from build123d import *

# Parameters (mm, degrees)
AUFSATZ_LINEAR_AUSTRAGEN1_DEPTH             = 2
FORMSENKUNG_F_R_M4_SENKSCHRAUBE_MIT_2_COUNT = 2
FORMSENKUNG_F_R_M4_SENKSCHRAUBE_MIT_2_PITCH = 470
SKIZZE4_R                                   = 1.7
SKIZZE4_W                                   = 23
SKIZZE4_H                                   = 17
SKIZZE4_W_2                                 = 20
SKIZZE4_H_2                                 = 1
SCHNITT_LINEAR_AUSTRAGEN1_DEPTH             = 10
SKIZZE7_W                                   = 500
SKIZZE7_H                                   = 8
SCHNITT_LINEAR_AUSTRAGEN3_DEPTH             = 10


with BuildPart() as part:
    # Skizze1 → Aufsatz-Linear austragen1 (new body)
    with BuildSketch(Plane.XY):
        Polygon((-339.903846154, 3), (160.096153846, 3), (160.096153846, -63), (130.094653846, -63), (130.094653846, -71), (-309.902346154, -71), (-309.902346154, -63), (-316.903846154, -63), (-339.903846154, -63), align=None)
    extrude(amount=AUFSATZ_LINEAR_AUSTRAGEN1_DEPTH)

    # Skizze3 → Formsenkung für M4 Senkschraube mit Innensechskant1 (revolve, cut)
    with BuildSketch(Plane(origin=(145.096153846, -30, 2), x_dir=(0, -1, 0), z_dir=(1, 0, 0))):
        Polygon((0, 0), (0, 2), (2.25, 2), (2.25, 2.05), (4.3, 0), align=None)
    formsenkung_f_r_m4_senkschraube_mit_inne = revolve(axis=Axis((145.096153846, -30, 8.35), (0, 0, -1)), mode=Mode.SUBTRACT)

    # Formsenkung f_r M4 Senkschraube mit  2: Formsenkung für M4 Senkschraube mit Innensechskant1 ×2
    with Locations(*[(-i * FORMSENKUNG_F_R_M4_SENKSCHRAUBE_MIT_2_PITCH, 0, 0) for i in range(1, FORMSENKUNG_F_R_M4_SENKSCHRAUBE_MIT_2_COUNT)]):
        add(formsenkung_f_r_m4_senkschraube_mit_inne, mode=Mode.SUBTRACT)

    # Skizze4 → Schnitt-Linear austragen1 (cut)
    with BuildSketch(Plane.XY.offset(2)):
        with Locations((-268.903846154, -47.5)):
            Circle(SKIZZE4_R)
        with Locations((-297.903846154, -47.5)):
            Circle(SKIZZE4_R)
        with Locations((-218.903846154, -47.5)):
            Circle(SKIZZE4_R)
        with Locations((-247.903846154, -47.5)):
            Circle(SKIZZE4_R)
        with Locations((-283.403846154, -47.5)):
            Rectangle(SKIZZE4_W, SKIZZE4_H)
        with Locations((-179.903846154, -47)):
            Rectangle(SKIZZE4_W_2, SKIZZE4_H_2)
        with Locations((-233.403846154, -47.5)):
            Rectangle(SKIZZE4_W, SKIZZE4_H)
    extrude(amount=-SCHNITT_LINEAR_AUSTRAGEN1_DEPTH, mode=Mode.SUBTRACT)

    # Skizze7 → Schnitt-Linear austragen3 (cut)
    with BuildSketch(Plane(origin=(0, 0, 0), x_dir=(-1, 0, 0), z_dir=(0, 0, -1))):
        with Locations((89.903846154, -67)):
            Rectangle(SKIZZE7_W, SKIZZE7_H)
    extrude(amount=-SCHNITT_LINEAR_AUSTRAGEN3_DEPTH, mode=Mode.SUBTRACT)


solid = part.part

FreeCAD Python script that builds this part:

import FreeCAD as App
import Part
import Sketcher
from FreeCAD import Vector
Q = App.Units.Quantity


def add_polygon(sketch, points):
    """Adds a closed chain of lines whose ends are joined by coincident constraints."""
    first, n = sketch.GeometryCount, len(points)
    for a, b in zip(points, points[1:] + points[:1]):
        sketch.addGeometry(Part.LineSegment(App.Vector(*a, 0), App.Vector(*b, 0)), False)
    for i in range(n):
        sketch.addConstraint(Sketcher.Constraint("Coincident", first + i, 2, first + (i + 1) % n, 1))

doc = App.newDocument("Part")
body = doc.addObject("PartDesign::Body", "Body")

# Sketch on XY plane
sketch1 = body.newObject("Sketcher::SketchObject", "Sketch")
sketch1.AttachmentSupport = (doc.getObject("XY_Plane"), [""])
sketch1.MapMode = "FlatFace"
add_polygon(sketch1, [(160.096154, 3), (-339.903846, 3), (-339.903846, -63), (-309.902346, -63), (-309.902346, -71), (130.094654, -71), (130.094654, -63), (160.096154, -63)])  # lines 0-7
sketch1.addConstraint(Sketcher.Constraint("Horizontal", 0))
sketch1.addConstraint(Sketcher.Constraint("Vertical", 1))
sketch1.addConstraint(Sketcher.Constraint("Horizontal", 2))
sketch1.addConstraint(Sketcher.Constraint("Vertical", 3))
sketch1.addConstraint(Sketcher.Constraint("Horizontal", 4))
sketch1.addConstraint(Sketcher.Constraint("Vertical", 5))
sketch1.addConstraint(Sketcher.Constraint("Horizontal", 6))
sketch1.addConstraint(Sketcher.Constraint("Vertical", 7))
sketch1.addConstraint(Sketcher.Constraint("Horizontal", 2, 2, 5, 2))
sketch1.addConstraint(Sketcher.Constraint("Equal", 2, 6))
sketch1.addConstraint(Sketcher.Constraint("DistanceX", 0, 2, 0, 1, 500.0))
sketch1.addConstraint(Sketcher.Constraint("DistanceY", 1, 2, 1, 1, 66.0))
sketch1.addConstraint(Sketcher.Constraint("DistanceY", 3, 2, 3, 1, 8.0))
sketch1.addConstraint(Sketcher.Constraint("DistanceY", -1, 1, 0, 2, 3.0))
sketch1.addConstraint(Sketcher.Constraint("DistanceX", 4, 1, 4, 2, 439.997))
sketch1.addConstraint(Sketcher.Constraint("DistanceX", 0, 2, -1, 1, 339.903846))
pad1 = body.newObject("PartDesign::Pad", "Pad")
pad1.Profile = sketch1
pad1.Length = 2

# Sketch on YZ plane
sketch2 = body.newObject("Sketcher::SketchObject", "Sketch001")
sketch2.AttachmentSupport = (doc.getObject("YZ_Plane"), [""])
sketch2.MapMode = "FlatFace"
sketch2.AttachmentOffset = App.Placement(Vector(0, 0, 145.096154), App.Rotation())
add_polygon(sketch2, [(-30, 0), (-30, 2), (-34.3, 2), (-32.25, -0.05), (-32.25, 0)])  # lines 0-4
sketch2.addGeometry(Part.LineSegment(Vector(-30, 2, 0), Vector(-30, -0.05, 0)), True)  # axis
sketch2.addConstraint(Sketcher.Constraint("Vertical", 0))
sketch2.addConstraint(Sketcher.Constraint("Horizontal", 1))
sketch2.addConstraint(Sketcher.Constraint("Vertical", 3))
sketch2.addConstraint(Sketcher.Constraint("Horizontal", 4))
sketch2.addConstraint(Sketcher.Constraint("Vertical", 5))
sketch2.addConstraint(Sketcher.Constraint("Coincident", 5, 1, 0, 2))
sketch2.addConstraint(Sketcher.Constraint("PointOnObject", 3, 2, -1))
sketch2.addConstraint(Sketcher.Constraint("Horizontal", 2, 2, 5, 2))
sketch2.addConstraint(Sketcher.Constraint("DistanceY", 0, 1, 0, 2, 2.0))
sketch2.addConstraint(Sketcher.Constraint("Angle", 2, Q("-45 deg")))
sketch2.addConstraint(Sketcher.Constraint("DistanceX", 1, 2, 1, 1, 4.3))
sketch2.addConstraint(Sketcher.Constraint("DistanceX", 0, 2, -1, 1, 30.0))
sketch2.addConstraint(Sketcher.Constraint("DistanceX", 4, 1, 4, 2, 2.25))
groove = body.newObject("PartDesign::Groove", "Groove")
groove.Profile = sketch2
groove.ReferenceAxis = (sketch2, ["Axis0"])
groove.Angle = 360
doc.recompute()

linearpattern = body.newObject("PartDesign::LinearPattern", "LinearPattern")
linearpattern.Originals = [groove]
linearpattern.Direction = (doc.getObject("X_Axis"), [""])
linearpattern.Mode = "offset"
linearpattern.Offset = 470
linearpattern.Occurrences = 2
linearpattern.Reversed = True
body.Tip = linearpattern

# Sketch on XY plane
sketch3 = body.newObject("Sketcher::SketchObject", "Sketch002")
sketch3.AttachmentSupport = (doc.getObject("XY_Plane"), [""])
sketch3.MapMode = "FlatFace"
sketch3.AttachmentOffset = App.Placement(Vector(0, 0, 2), App.Rotation())
sketch3.addGeometry(Part.Circle(Vector(-268.903846, -47.5, 0), Vector(0, 0, 1), 1.7), False)  # 0
sketch3.addGeometry(Part.Circle(Vector(-297.903846, -47.5, 0), Vector(0, 0, 1), 1.7), False)  # 1
sketch3.addGeometry(Part.Circle(Vector(-218.903846, -47.5, 0), Vector(0, 0, 1), 1.7), False)  # 2
sketch3.addGeometry(Part.Circle(Vector(-247.903846, -47.5, 0), Vector(0, 0, 1), 1.7), False)  # 3
add_polygon(sketch3, [(-294.903846, -39), (-294.903846, -56), (-271.903846, -56), (-271.903846, -39)])  # lines 4-7
add_polygon(sketch3, [(-189.903846, -46.5), (-189.903846, -47.5), (-169.903846, -47.5), (-169.903846, -46.5)])  # lines 8-11
add_polygon(sketch3, [(-244.903846, -39), (-244.903846, -56), (-221.903846, -56), (-221.903846, -39)])  # lines 12-15
sketch3.addConstraint(Sketcher.Constraint("Vertical", 4))
sketch3.addConstraint(Sketcher.Constraint("Horizontal", 5))
sketch3.addConstraint(Sketcher.Constraint("Vertical", 6))
sketch3.addConstraint(Sketcher.Constraint("Horizontal", 7))
sketch3.addConstraint(Sketcher.Constraint("Vertical", 8))
sketch3.addConstraint(Sketcher.Constraint("Horizontal", 9))
sketch3.addConstraint(Sketcher.Constraint("Vertical", 10))
sketch3.addConstraint(Sketcher.Constraint("Horizontal", 11))
sketch3.addConstraint(Sketcher.Constraint("Vertical", 12))
sketch3.addConstraint(Sketcher.Constraint("Horizontal", 13))
sketch3.addConstraint(Sketcher.Constraint("Vertical", 14))
sketch3.addConstraint(Sketcher.Constraint("Horizontal", 15))
sketch3.addConstraint(Sketcher.Constraint("Equal", 0, 1))
sketch3.addConstraint(Sketcher.Constraint("Equal", 1, 2))
sketch3.addConstraint(Sketcher.Constraint("Equal", 2, 3))
sketch3.addConstraint(Sketcher.Constraint("Horizontal", 0, 3, 1, 3))
sketch3.addConstraint(Sketcher.Constraint("Horizontal", 1, 3, 2, 3))
sketch3.addConstraint(Sketcher.Constraint("Horizontal", 2, 3, 3, 3))
sketch3.addConstraint(Sketcher.Constraint("Horizontal", 3, 3, 8, 2))
sketch3.addConstraint(Sketcher.Constraint("Horizontal", 5, 2, 12, 2))
sketch3.addConstraint(Sketcher.Constraint("Horizontal", 7, 2, 14, 2))
sketch3.addConstraint(Sketcher.Constraint("Equal", 7, 13))
sketch3.addConstraint(Sketcher.Constraint("Diameter", 0, 3.4))
sketch3.addConstraint(Sketcher.Constraint("DistanceX", 5, 1, 5, 2, 23.0))
sketch3.addConstraint(Sketcher.Constraint("DistanceX", 9, 1, 9, 2, 20.0))
sketch3.addConstraint(Sketcher.Constraint("DistanceY", 4, 2, 4, 1, 17.0))
sketch3.addConstraint(Sketcher.Constraint("DistanceY", 8, 2, 8, 1, 1.0))
sketch3.addConstraint(Sketcher.Constraint("DistanceY", 4, 2, -1, 1, 56.0))
sketch3.addConstraint(Sketcher.Constraint("DistanceX", 1, 3, 0, 3, 29.0))
sketch3.addConstraint(Sketcher.Constraint("DistanceX", 0, 3, 2, 3, 50.0))
sketch3.addConstraint(Sketcher.Constraint("DistanceX", 0, 3, 3, 3, 21.0))
sketch3.addConstraint(Sketcher.Constraint("DistanceX", 1, 3, 4, 2, 3.0))
sketch3.addConstraint(Sketcher.Constraint("DistanceX", 2, 3, 8, 2, 29.0))
sketch3.addConstraint(Sketcher.Constraint("DistanceX", 3, 3, 12, 2, 3.0))
sketch3.addConstraint(Sketcher.Constraint("DistanceY", 0, 3, -1, 1, 47.5))
sketch3.addConstraint(Sketcher.Constraint("DistanceX", 0, 3, -1, 1, 268.903846))
pocket1 = body.newObject("PartDesign::Pocket", "Pocket")
pocket1.Profile = sketch3
pocket1.Length = 10

# Sketch on XY plane
sketch4 = body.newObject("Sketcher::SketchObject", "Sketch003")
sketch4.AttachmentSupport = (doc.getObject("XY_Plane"), [""])
sketch4.MapMode = "FlatFace"
add_polygon(sketch4, [(160.096154, -63), (160.096154, -71), (-339.903846, -71), (-339.903846, -63)])  # lines 0-3
sketch4.addConstraint(Sketcher.Constraint("Vertical", 0))
sketch4.addConstraint(Sketcher.Constraint("Horizontal", 1))
sketch4.addConstraint(Sketcher.Constraint("Vertical", 2))
sketch4.addConstraint(Sketcher.Constraint("Horizontal", 3))
sketch4.addConstraint(Sketcher.Constraint("DistanceX", 1, 2, 1, 1, 500.0))
sketch4.addConstraint(Sketcher.Constraint("DistanceY", 0, 2, 0, 1, 8.0))
sketch4.addConstraint(Sketcher.Constraint("DistanceY", 0, 2, -1, 1, 71.0))
sketch4.addConstraint(Sketcher.Constraint("DistanceX", -1, 1, 0, 2, 160.096154))
pocket2 = body.newObject("PartDesign::Pocket", "Pocket001")
pocket2.Profile = sketch4
pocket2.Length = 10
pocket2.Reversed = True

doc.recompute()
